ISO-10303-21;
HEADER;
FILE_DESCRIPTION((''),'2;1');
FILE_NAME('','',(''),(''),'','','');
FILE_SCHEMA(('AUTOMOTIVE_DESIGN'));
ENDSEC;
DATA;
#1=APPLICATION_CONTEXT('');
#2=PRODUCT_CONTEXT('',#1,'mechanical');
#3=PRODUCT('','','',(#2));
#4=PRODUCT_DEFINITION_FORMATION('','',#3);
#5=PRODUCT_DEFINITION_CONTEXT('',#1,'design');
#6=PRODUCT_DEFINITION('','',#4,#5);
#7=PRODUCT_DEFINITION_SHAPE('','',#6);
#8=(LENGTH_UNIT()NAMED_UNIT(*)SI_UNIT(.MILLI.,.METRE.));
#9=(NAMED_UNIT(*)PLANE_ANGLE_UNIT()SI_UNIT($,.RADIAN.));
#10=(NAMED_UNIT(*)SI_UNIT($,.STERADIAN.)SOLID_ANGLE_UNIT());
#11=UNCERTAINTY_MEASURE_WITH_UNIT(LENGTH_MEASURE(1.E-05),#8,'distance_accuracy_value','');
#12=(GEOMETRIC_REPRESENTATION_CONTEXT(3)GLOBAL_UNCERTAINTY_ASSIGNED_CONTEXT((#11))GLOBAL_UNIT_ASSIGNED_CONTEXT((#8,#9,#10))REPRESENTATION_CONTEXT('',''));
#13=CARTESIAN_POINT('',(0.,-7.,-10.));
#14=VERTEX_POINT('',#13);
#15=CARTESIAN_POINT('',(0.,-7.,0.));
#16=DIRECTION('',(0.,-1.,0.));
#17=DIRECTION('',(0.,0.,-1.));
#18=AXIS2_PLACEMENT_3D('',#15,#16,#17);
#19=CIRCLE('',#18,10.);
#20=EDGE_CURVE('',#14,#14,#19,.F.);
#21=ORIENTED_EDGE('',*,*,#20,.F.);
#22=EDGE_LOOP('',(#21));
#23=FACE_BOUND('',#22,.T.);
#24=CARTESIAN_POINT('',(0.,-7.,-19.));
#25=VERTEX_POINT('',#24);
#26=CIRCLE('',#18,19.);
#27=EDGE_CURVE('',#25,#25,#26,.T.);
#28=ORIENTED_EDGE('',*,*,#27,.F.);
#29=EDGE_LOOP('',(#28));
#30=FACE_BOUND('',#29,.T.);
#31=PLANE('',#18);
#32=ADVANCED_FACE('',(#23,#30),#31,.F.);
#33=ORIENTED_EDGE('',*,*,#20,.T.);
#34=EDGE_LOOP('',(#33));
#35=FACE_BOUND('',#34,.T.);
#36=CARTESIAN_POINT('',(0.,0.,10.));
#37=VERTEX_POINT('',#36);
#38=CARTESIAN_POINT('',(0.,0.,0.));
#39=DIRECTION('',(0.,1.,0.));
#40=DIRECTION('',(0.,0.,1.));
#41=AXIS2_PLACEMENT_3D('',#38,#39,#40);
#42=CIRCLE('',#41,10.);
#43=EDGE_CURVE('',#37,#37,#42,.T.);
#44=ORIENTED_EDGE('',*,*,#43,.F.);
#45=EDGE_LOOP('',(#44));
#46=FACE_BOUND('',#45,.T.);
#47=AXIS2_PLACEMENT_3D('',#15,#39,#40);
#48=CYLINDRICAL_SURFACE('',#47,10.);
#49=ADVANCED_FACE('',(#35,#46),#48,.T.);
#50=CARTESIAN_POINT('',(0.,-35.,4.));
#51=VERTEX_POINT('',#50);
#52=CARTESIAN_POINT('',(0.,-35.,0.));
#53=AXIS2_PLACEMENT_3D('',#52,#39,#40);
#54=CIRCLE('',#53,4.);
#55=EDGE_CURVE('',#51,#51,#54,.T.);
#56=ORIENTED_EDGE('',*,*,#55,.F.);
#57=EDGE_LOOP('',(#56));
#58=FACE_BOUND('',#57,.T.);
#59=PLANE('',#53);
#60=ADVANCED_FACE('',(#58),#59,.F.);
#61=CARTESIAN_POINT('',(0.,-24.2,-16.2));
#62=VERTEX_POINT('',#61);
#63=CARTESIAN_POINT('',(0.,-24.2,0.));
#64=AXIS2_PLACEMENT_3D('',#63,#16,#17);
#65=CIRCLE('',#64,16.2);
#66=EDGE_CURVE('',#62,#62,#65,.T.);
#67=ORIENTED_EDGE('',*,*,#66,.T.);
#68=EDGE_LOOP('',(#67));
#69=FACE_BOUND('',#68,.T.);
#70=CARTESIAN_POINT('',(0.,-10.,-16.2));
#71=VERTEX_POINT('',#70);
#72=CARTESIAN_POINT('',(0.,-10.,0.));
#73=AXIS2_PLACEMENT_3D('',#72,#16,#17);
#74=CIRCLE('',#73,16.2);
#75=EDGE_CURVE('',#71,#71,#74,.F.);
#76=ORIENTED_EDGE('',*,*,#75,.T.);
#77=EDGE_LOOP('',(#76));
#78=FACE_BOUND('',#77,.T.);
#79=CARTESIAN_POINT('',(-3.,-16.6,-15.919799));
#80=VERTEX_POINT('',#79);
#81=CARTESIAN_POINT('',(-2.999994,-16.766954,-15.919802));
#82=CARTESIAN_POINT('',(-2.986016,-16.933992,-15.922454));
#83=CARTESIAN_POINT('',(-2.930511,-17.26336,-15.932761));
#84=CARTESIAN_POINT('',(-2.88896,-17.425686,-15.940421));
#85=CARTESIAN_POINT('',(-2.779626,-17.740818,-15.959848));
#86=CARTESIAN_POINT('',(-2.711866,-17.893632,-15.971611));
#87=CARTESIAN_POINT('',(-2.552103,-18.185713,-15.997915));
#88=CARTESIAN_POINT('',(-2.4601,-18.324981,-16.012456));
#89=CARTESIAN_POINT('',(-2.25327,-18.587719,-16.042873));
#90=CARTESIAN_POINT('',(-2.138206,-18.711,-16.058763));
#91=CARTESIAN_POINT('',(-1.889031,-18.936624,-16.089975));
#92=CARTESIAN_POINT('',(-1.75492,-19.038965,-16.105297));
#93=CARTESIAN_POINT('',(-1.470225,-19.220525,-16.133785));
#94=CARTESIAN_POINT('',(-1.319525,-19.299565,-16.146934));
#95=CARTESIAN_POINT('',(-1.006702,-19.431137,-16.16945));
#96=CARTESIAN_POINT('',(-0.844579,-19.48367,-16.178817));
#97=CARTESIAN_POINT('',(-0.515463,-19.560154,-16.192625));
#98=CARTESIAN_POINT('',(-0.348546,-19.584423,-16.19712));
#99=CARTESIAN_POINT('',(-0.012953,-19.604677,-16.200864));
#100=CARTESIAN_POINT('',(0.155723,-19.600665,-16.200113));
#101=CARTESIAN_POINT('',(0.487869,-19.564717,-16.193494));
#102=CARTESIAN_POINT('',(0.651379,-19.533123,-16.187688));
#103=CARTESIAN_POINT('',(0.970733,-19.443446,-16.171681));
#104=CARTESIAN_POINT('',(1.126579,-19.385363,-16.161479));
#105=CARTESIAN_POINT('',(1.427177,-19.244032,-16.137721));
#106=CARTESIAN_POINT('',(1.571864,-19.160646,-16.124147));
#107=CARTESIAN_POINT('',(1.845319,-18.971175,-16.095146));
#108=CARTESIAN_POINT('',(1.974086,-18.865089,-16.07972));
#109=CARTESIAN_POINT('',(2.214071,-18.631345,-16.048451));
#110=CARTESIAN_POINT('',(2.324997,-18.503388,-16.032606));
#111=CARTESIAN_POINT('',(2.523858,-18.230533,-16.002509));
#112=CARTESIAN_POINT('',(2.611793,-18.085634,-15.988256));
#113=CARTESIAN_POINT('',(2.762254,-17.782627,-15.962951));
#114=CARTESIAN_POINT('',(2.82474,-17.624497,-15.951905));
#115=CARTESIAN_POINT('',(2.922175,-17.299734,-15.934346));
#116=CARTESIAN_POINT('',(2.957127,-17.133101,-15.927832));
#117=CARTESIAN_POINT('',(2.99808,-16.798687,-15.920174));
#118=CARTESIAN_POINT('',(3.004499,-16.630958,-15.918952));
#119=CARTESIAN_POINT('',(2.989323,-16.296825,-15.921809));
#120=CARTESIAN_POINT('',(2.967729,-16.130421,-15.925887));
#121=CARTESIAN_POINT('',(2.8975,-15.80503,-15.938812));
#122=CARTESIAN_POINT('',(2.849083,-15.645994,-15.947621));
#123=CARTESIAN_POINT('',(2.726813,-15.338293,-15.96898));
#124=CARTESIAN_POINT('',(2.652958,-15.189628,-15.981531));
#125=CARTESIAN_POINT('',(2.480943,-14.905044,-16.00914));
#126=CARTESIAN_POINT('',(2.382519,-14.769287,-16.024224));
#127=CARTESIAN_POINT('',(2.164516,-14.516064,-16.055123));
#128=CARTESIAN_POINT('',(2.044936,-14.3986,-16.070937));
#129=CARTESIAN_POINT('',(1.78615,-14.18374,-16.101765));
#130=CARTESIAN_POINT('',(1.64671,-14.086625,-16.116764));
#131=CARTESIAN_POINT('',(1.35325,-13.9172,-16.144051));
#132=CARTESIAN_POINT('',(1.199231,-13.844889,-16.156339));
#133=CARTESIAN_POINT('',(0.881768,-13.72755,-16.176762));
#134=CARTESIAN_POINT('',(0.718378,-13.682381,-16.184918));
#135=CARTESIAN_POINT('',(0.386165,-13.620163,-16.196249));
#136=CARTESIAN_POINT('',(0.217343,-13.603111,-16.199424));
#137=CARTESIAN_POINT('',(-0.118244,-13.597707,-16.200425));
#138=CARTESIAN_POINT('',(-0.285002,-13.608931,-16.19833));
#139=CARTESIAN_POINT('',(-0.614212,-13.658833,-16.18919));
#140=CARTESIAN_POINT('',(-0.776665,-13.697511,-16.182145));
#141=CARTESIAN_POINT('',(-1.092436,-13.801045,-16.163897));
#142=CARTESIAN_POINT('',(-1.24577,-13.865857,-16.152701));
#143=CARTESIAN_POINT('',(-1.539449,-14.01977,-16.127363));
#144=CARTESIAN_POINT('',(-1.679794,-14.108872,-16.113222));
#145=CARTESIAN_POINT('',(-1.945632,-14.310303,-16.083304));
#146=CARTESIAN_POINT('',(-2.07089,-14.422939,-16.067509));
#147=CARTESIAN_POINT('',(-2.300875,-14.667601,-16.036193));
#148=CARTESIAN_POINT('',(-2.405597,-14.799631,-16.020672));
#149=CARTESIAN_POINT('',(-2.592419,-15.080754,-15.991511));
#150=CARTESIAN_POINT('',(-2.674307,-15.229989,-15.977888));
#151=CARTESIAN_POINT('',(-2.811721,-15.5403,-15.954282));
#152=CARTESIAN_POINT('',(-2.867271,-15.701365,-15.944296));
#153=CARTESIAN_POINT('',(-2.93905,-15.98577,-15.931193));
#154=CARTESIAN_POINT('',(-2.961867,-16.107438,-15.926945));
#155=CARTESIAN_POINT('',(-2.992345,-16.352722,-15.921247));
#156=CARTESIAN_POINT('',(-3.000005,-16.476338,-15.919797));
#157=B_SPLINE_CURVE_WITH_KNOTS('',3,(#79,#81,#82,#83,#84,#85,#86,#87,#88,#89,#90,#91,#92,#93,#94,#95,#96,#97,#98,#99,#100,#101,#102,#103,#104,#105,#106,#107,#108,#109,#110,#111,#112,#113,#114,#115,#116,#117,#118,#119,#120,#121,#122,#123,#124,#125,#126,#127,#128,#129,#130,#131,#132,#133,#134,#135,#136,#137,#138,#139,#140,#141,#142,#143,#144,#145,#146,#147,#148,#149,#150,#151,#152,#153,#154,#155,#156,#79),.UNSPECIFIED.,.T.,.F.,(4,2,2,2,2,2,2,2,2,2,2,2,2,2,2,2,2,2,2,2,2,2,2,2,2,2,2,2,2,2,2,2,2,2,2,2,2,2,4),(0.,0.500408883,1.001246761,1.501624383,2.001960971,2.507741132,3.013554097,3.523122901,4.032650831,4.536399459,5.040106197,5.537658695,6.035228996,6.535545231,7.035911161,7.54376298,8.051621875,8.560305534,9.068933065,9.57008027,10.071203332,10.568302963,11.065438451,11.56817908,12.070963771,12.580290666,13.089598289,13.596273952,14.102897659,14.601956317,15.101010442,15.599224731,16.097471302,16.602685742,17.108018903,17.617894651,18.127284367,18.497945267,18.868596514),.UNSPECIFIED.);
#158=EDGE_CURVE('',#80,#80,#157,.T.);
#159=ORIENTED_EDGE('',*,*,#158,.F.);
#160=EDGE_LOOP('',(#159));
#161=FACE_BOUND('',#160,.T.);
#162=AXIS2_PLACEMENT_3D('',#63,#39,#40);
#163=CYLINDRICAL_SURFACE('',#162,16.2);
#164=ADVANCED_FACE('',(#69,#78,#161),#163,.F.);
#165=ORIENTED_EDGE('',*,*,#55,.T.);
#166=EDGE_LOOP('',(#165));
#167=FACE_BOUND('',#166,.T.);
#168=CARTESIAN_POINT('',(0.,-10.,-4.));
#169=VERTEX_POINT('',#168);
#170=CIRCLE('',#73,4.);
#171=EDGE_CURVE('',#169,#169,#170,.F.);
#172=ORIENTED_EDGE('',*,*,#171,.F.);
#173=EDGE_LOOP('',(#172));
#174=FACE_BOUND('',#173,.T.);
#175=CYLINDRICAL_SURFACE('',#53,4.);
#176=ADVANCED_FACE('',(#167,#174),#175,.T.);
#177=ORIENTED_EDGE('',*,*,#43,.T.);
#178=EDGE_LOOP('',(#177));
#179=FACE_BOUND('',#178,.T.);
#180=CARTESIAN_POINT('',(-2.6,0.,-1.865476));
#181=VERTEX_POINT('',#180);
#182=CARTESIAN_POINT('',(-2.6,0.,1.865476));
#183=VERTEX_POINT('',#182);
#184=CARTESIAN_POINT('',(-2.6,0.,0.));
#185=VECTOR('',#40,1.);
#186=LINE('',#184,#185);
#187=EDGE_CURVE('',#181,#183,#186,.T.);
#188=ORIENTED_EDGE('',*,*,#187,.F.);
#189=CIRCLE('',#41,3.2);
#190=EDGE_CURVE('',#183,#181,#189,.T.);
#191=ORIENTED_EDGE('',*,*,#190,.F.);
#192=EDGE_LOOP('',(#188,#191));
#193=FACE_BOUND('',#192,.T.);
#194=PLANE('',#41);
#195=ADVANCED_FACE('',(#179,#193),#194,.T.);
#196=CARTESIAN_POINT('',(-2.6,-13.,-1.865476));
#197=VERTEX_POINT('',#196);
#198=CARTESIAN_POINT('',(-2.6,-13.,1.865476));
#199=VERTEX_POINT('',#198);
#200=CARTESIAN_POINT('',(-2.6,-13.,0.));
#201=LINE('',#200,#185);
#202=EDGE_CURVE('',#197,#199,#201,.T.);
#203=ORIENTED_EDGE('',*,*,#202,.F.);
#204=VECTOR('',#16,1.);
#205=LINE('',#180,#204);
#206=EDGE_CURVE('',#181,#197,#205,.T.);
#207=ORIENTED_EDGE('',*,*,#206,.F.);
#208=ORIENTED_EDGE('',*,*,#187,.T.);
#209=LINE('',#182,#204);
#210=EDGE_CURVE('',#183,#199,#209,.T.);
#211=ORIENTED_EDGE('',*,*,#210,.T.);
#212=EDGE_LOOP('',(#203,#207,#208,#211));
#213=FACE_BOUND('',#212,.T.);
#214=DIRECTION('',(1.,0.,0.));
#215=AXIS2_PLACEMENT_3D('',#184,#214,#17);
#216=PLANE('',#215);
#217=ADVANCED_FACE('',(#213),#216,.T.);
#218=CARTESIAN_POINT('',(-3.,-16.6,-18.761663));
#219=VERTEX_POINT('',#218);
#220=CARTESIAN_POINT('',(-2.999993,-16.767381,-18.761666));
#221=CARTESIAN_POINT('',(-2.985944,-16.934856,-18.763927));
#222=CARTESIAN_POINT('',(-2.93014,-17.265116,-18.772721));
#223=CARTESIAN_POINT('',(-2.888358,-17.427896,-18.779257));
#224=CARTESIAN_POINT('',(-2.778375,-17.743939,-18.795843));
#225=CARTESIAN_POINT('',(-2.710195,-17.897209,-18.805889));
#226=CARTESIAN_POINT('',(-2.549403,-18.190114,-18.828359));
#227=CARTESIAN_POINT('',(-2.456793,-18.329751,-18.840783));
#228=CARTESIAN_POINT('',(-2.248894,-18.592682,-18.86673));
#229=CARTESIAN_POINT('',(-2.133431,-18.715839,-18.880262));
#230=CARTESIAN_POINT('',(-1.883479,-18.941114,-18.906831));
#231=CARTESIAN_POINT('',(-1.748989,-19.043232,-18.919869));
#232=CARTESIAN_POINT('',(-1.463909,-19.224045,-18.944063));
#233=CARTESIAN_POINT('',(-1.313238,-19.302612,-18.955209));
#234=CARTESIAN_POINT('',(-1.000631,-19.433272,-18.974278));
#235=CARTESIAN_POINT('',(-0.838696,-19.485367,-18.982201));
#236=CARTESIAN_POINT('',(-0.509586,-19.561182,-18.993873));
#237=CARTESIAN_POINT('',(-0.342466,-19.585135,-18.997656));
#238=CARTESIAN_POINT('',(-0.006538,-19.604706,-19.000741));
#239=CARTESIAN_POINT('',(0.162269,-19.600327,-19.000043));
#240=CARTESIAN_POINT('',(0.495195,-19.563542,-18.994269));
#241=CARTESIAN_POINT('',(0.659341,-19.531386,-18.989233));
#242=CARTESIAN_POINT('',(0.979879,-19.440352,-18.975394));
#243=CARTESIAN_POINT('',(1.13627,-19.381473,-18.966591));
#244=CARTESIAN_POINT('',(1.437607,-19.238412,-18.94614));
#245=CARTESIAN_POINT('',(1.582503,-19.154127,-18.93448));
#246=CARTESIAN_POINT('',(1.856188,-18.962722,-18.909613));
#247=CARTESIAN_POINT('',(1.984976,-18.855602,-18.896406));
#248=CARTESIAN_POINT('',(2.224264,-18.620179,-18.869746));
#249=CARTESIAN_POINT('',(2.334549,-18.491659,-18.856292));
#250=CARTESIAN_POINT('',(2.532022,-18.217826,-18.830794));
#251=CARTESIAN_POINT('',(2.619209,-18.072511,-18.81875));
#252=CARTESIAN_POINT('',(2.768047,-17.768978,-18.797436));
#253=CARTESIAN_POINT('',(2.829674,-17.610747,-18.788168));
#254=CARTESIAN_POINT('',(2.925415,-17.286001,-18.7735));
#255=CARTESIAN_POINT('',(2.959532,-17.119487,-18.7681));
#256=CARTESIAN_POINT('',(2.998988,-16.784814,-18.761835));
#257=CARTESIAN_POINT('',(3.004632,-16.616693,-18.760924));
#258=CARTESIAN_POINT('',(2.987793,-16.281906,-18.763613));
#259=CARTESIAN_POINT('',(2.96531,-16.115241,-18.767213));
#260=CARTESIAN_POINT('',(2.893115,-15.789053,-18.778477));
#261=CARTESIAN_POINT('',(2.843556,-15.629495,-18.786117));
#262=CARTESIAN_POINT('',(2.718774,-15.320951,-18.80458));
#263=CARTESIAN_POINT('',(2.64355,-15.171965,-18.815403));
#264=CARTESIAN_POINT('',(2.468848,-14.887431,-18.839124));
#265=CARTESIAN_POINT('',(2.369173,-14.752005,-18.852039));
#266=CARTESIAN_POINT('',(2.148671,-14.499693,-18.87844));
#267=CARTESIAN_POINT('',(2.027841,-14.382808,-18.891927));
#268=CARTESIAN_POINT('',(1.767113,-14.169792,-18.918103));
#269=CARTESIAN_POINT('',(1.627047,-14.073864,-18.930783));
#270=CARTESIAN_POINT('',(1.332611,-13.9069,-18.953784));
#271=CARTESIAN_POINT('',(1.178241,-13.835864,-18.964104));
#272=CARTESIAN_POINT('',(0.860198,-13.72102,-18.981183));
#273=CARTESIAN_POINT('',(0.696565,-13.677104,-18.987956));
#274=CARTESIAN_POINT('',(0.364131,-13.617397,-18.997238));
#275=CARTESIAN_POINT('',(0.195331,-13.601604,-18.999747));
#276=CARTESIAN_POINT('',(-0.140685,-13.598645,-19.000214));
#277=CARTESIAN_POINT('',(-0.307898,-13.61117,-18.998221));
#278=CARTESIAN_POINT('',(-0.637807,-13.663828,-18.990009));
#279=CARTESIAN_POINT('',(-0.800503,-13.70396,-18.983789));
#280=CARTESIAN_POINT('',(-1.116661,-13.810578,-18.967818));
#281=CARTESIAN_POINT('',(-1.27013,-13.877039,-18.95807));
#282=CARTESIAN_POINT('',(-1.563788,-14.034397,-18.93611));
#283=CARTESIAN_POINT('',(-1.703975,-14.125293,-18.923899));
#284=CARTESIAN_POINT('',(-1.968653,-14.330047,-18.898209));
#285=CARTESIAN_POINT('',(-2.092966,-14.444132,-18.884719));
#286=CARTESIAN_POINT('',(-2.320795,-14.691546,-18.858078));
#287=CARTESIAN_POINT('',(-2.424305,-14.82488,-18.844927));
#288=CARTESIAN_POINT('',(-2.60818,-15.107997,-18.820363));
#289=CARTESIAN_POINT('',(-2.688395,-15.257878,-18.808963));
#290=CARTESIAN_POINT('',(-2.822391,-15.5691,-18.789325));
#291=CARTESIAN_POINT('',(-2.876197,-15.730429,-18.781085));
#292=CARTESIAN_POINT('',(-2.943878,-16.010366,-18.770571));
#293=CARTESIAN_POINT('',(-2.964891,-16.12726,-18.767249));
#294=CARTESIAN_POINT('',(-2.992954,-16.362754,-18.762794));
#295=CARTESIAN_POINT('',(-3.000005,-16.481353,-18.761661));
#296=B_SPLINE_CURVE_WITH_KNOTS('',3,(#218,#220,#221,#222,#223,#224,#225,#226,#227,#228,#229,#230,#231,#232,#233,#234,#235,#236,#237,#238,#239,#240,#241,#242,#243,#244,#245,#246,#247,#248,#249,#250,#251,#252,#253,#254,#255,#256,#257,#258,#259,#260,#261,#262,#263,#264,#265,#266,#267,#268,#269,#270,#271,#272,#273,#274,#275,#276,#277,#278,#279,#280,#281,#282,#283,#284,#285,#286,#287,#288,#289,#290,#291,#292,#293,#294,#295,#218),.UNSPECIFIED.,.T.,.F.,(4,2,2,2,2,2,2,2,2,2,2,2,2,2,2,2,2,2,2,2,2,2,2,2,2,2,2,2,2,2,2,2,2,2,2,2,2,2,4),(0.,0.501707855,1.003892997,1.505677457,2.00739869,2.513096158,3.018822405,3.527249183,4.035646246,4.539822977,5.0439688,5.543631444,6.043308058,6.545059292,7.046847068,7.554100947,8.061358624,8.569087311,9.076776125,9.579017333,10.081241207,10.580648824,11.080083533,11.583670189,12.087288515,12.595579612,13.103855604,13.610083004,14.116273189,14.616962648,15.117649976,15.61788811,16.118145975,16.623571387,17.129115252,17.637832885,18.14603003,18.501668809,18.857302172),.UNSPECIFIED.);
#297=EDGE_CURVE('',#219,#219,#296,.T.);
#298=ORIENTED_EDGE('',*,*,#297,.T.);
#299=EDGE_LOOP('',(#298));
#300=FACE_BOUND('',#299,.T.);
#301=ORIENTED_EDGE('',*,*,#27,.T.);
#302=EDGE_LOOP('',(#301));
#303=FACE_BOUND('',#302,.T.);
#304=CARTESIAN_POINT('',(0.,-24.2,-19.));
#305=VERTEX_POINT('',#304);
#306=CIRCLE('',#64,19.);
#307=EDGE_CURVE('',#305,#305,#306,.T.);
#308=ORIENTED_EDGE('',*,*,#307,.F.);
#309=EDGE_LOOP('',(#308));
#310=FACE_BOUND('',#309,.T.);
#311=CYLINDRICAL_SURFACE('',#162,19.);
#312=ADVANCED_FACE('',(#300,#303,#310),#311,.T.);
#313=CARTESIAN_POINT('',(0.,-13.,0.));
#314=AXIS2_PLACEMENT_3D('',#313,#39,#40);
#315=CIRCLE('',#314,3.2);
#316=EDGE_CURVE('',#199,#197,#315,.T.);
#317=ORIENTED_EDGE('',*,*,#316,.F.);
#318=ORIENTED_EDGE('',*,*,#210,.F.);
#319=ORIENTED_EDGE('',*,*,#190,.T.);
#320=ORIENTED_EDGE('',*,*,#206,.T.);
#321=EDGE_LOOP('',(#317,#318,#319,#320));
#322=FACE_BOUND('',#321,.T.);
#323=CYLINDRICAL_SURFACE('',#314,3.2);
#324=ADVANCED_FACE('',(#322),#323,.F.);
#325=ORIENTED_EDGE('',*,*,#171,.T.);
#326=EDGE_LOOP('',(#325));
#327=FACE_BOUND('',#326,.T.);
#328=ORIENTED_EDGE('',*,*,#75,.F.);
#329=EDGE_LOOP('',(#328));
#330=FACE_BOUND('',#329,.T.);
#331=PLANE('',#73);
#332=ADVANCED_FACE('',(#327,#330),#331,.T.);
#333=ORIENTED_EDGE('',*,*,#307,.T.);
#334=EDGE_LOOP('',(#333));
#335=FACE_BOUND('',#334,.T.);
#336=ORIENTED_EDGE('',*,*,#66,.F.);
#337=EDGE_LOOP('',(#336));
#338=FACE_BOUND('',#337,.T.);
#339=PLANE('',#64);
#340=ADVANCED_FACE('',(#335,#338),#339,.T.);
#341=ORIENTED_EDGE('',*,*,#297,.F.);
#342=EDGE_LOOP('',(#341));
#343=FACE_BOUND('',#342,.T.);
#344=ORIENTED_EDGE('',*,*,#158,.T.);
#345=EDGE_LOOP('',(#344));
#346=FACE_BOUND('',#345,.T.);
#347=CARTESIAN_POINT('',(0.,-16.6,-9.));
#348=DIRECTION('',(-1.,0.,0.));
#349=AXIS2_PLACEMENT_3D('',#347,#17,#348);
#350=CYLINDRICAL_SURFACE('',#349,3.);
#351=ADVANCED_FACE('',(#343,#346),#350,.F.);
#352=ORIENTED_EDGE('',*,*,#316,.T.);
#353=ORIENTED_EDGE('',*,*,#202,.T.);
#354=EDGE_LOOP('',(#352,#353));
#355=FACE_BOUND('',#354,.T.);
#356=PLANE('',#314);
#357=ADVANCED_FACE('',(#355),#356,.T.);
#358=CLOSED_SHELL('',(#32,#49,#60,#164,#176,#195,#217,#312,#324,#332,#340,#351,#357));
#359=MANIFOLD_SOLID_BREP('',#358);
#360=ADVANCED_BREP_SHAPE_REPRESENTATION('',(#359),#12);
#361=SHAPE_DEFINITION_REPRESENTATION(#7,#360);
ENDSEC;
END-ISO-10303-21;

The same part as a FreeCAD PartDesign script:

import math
import FreeCAD as App
import Part
import Sketcher

V = App.Vector

doc = App.newDocument("Part")
body = doc.addObject("PartDesign::Body", "Body")

# Sketch on XZ plane
sketch1 = body.newObject("Sketcher::SketchObject", "Sketch")
sketch1.AttachmentSupport = (doc.getObject("XZ_Plane"), [""])
sketch1.MapMode = "FlatFace"
sketch1.addGeometry(Part.Circle(V(0, 0, 0), V(0, 0, 1), 4), False)
sketch1.addConstraint(Sketcher.Constraint("Coincident", 0, 3, -1, 1))
sketch1.addConstraint(Sketcher.Constraint("Diameter", 0, 8.0))
pad1 = body.newObject("PartDesign::Pad", "Pad")
pad1.Profile = sketch1
pad1.Length = 35

# Sketch on XZ plane
sketch2 = body.newObject("Sketcher::SketchObject", "Sketch001")
sketch2.AttachmentSupport = (doc.getObject("XZ_Plane"), [""])
sketch2.MapMode = "FlatFace"
sketch2.addGeometry(Part.Circle(V(0, 0, 0), V(0, 0, 1), 3.2), False)
sketch2.addConstraint(Sketcher.Constraint("Coincident", 0, 3, -1, 1))
sketch2.addConstraint(Sketcher.Constraint("Diameter", 0, 6.4))
pocket1 = body.newObject("PartDesign::Pocket", "Pocket")
pocket1.Profile = sketch2
pocket1.Length = 13
pocket1.Reversed = True

# Sketch on XZ plane
sketch3 = body.newObject("Sketcher::SketchObject", "Sketch002")
sketch3.AttachmentSupport = (doc.getObject("XZ_Plane"), [""])
sketch3.MapMode = "FlatFace"
sketch3.addGeometry(Part.LineSegment(V(-2.6, 1.9, 0), V(-2.6, -1.9, 0)), False)
sketch3.addGeometry(Part.ArcOfCircle(Part.Circle(V(0, 0, 0), V(0, 0, 1), 3.2), math.radians(144), math.radians(216)), False)
sketch3.addConstraint(Sketcher.Constraint("Coincident", 0, 1, 1, 1))
sketch3.addConstraint(Sketcher.Constraint("Coincident", 1, 2, 0, 2))
sketch3.addConstraint(Sketcher.Constraint("Vertical", 0))
sketch3.addConstraint(Sketcher.Constraint("Coincident", 1, 3, -1, 1))
sketch3.addConstraint(Sketcher.Constraint("Radius", 1, 3.2))
sketch3.addConstraint(Sketcher.Constraint("DistanceX", 0, 1, -1, 1, 2.6))
pad2 = body.newObject("PartDesign::Pad", "Pad001")
pad2.Profile = sketch3
pad2.Length = 13

# Sketch on XZ plane
sketch4 = body.newObject("Sketcher::SketchObject", "Sketch003")
sketch4.AttachmentSupport = (doc.getObject("XZ_Plane"), [""])
sketch4.MapMode = "FlatFace"
sketch4.addGeometry(Part.Circle(V(0, 0, 0), V(0, 0, 1), 10), False)
sketch4.addGeometry(Part.Circle(V(0, 0, 0), V(0, 0, 1), 4), False)
sketch4.addConstraint(Sketcher.Constraint("Coincident", 0, 3, -1, 1))
sketch4.addConstraint(Sketcher.Constraint("Coincident", 1, 3, -1, 1))
sketch4.addConstraint(Sketcher.Constraint("Diameter", 0, 20.0))
sketch4.addConstraint(Sketcher.Constraint("Diameter", 1, 8.0))
pad3 = body.newObject("PartDesign::Pad", "Pad002")
pad3.Profile = sketch4
pad3.Length = 7

# Sketch on XZ plane
sketch5 = body.newObject("Sketcher::SketchObject", "Sketch004")
sketch5.AttachmentSupport = (doc.getObject("XZ_Plane"), [""])
sketch5.MapMode = "FlatFace"
sketch5.AttachmentOffset = App.Placement(V(0, 0, 7), App.Rotation())
sketch5.addGeometry(Part.Circle(V(0, 0, 0), V(0, 0, 1), 16.2), False)
sketch5.addGeometry(Part.Circle(V(0, 0, 0), V(0, 0, 1), 4), False)
sketch5.addConstraint(Sketcher.Constraint("Coincident", 0, 3, -1, 1))
sketch5.addConstraint(Sketcher.Constraint("Coincident", 1, 3, -1, 1))
sketch5.addConstraint(Sketcher.Constraint("Diameter", 1, 8.0))
sketch5.addConstraint(Sketcher.Constraint("Diameter", 0, 32.4))
pad4 = body.newObject("PartDesign::Pad", "Pad003")
pad4.Profile = sketch5
pad4.Length = 3

# Sketch on XZ plane
sketch6 = body.newObject("Sketcher::SketchObject", "Sketch005")
sketch6.AttachmentSupport = (doc.getObject("XZ_Plane"), [""])
sketch6.MapMode = "FlatFace"
sketch6.AttachmentOffset = App.Placement(V(0, 0, 7), App.Rotation())
sketch6.addGeometry(Part.Circle(V(0, 0, 0), V(0, 0, 1), 19), False)
sketch6.addGeometry(Part.Circle(V(0, 0, 0), V(0, 0, 1), 16), False)
sketch6.addConstraint(Sketcher.Constraint("Coincident", 0, 3, -1, 1))
sketch6.addConstraint(Sketcher.Constraint("Coincident", 1, 3, -1, 1))
sketch6.addConstraint(Sketcher.Constraint("Diameter", 0, 38.0))
sketch6.addConstraint(Sketcher.Constraint("Diameter", 1, 32.4))
pad5 = body.newObject("PartDesign::Pad", "Pad004")
pad5.Profile = sketch6
pad5.Length = 17.2

# Sketch on XY plane
sketch7 = body.newObject("Sketcher::SketchObject", "Sketch006")
sketch7.AttachmentSupport = (doc.getObject("XY_Plane"), [""])
sketch7.MapMode = "FlatFace"
sketch7.AttachmentOffset = App.Placement(V(0, 0, -19), App.Rotation())
sketch7.addGeometry(Part.Circle(V(0, -16.6, 0), V(0, 0, 1), 3), False)
sketch7.addConstraint(Sketcher.Constraint("PointOnObject", 0, 3, -2))
sketch7.addConstraint(Sketcher.Constraint("Diameter", 0, 6.0))
sketch7.addConstraint(Sketcher.Constraint("DistanceY", 0, 3, -1, 1, 16.6))
pocket2 = body.newObject("PartDesign::Pocket", "Pocket001")
pocket2.Profile = sketch7
pocket2.Length = 10
pocket2.Reversed = True

doc.recompute()
